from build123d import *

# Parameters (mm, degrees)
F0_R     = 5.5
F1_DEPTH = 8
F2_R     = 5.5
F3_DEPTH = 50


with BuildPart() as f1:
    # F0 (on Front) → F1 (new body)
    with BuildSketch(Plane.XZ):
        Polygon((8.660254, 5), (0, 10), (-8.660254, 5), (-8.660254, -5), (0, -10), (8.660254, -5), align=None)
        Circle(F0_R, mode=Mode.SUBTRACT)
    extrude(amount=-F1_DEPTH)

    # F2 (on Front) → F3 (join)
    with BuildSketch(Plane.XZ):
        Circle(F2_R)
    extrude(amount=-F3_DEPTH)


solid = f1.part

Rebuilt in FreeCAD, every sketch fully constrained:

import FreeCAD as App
import Part
import Sketcher

V = App.Vector
Q = App.Units.Quantity

doc = App.newDocument("Part")
body = doc.addObject("PartDesign::Body", "Body")

sketch1 = doc.addObject("Sketcher::SketchObject", "Sketch")
body.addObject(sketch1)
sketch1.AttachmentSupport = (doc.XZ_Plane, [""])
sketch1.MapMode = "FlatFace"
sketch1.addGeometry([
    Part.LineSegment(V(9, 5, 0), V(0, 10, 0)),
    Part.LineSegment(V(0, 10, 0), V(-9, 5, 0)),
    Part.LineSegment(V(-9, 5, 0), V(-9, -5, 0)),
    Part.LineSegment(V(-9, -5, 0), V(0, -10, 0)),
    Part.LineSegment(V(0, -10, 0), V(9, -5, 0)),
    Part.LineSegment(V(9, -5, 0), V(9, 5, 0)),
    Part.Circle(V(0, 0, 0), V(0, 0, 1), 6),
], False)
sketch1.addConstraint([
    Sketcher.Constraint("Coincident", 0, 2, 1, 1),
    Sketcher.Constraint("Coincident", 1, 2, 2, 1),
    Sketcher.Constraint("Coincident", 2, 2, 3, 1),
    Sketcher.Constraint("Coincident", 3, 2, 4, 1),
    Sketcher.Constraint("Coincident", 4, 2, 5, 1),
    Sketcher.Constraint("Coincident", 5, 2, 0, 1),
    Sketcher.Constraint("Vertical", 2),
    Sketcher.Constraint("Vertical", 5),
    Sketcher.Constraint("Coincident", 6, 3, -1, 1),
    Sketcher.Constraint("Symmetric", 0, 2, 3, 2, -1, 1),
    Sketcher.Constraint("Symmetric", 1, 2, 4, 2, -1, 1),
    Sketcher.Constraint("PointOnObject", 0, 2, -2),
    Sketcher.Constraint("Parallel", 0, 3),
    Sketcher.Constraint("Horizontal", 2, 2, 4, 2),
    Sketcher.Constraint("Diameter", 6, Q("11 mm")),
    Sketcher.Constraint("DistanceY", 2, 2, 2, 1, Q("10 mm")),
    Sketcher.Constraint("Angle", 0, Q("150 deg")),
    Sketcher.Constraint("Distance", 0, Q("10 mm")),
])
pad1 = doc.addObject("PartDesign::Pad", "Pad")
body.addObject(pad1)
pad1.Profile = sketch1
pad1.Length = 8
pad1.Reversed = True

sketch2 = doc.addObject("Sketcher::SketchObject", "Sketch001")
body.addObject(sketch2)
sketch2.AttachmentSupport = (doc.XZ_Plane, [""])
sketch2.MapMode = "FlatFace"
sketch2.addGeometry(Part.Circle(V(0, 0, 0), V(0, 0, 1), 6), False)
sketch2.addConstraint([
    Sketcher.Constraint("Coincident", 0, 3, -1, 1),
    Sketcher.Constraint("Diameter", 0, Q("11 mm")),
])
pad2 = doc.addObject("PartDesign::Pad", "Pad001")
body.addObject(pad2)
pad2.Profile = sketch2
pad2.Length = 50
pad2.Reversed = True

doc.recompute()
